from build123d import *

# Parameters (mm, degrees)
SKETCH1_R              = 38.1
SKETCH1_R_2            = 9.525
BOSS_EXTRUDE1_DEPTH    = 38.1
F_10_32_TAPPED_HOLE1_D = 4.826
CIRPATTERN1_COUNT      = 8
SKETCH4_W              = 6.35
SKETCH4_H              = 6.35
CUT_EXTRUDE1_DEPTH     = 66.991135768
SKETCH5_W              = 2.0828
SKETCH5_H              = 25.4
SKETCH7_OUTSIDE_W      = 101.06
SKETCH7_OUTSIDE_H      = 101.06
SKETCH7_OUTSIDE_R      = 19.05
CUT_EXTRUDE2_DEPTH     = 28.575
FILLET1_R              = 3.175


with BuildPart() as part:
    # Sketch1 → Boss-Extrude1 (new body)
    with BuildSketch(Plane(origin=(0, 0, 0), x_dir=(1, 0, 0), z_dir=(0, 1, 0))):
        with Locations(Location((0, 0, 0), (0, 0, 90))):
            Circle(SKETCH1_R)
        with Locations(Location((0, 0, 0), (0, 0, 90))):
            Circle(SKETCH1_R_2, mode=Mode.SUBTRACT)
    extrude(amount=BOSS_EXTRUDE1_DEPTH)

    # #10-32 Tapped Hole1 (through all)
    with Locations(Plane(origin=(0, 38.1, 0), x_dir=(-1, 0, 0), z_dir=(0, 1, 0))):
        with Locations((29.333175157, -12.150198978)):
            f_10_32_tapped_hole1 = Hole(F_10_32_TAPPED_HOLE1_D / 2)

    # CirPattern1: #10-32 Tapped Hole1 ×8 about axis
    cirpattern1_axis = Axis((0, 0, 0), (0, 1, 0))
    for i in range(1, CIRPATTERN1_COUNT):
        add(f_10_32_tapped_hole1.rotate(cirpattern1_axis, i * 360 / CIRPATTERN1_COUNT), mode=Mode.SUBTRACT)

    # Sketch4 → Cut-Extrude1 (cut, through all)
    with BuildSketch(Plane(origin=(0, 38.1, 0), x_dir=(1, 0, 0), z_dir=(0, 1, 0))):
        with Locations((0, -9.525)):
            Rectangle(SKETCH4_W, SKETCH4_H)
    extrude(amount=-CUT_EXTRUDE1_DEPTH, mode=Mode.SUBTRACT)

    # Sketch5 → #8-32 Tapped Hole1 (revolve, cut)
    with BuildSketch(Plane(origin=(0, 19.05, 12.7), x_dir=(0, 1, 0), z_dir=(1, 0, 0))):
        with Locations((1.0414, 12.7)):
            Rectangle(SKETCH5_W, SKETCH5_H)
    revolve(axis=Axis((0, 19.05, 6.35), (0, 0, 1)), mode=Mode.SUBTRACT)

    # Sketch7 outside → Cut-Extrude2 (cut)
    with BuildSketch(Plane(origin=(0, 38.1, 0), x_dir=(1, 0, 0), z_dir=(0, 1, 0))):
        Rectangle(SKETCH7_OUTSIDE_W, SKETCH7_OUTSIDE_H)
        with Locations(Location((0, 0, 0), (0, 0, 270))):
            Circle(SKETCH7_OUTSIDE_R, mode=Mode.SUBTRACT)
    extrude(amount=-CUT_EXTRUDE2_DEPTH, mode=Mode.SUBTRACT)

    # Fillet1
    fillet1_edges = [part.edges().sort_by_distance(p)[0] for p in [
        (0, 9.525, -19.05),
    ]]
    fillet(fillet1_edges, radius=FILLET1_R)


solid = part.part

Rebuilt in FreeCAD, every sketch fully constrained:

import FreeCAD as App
import Part
import Sketcher

V = App.Vector
Q = App.Units.Quantity


def edges_at(feature, points):
    """Names of the edges that pass closest to the given points."""
    edges = feature.Shape.Edges
    near = lambda p: min(range(len(edges)), key=lambda i: edges[i].distToShape(Part.Vertex(*p))[0])
    return sorted({f"Edge{near(p) + 1}" for p in points})


def add_polygon(sketch, points):
    """Adds a closed chain of lines whose ends are joined by coincident constraints."""
    first, n = sketch.GeometryCount, len(points)
    for a, b in zip(points, points[1:] + points[:1]):
        sketch.addGeometry(Part.LineSegment(App.Vector(*a, 0), App.Vector(*b, 0)), False)
    for i in range(n):
        sketch.addConstraint(Sketcher.Constraint("Coincident", first + i, 2, first + (i + 1) % n, 1))

doc = App.newDocument("Part")
body = doc.addObject("PartDesign::Body", "Body")

sketch1 = body.newObject("Sketcher::SketchObject", "Sketch")
sketch1.AttachmentSupport = (doc.getObject("XZ_Plane"), [""])
sketch1.MapMode = "FlatFace"
sketch1.addGeometry([
    Part.Circle(V(0, 0, 0), V(0, 0, 1), 38.1),
    Part.Circle(V(0, 0, 0), V(0, 0, 1), 9.525),
], False)
sketch1.addConstraint([
    Sketcher.Constraint("Coincident", 0, 3, -1, 1),
    Sketcher.Constraint("Coincident", 1, 3, -1, 1),
    Sketcher.Constraint("Diameter", 0, Q("3 in")),
    Sketcher.Constraint("Diameter", 1, Q("0.75 in")),
])
pad1 = body.newObject("PartDesign::Pad", "Pad")
pad1.Profile = sketch1
pad1.Length = Q("1.5 in")
pad1.Reversed = True

sketch2 = body.newObject("Sketcher::SketchObject", "Sketch001")
sketch2.AttachmentSupport = (doc.getObject("XZ_Plane"), [""])
sketch2.MapMode = "FlatFace"
sketch2.AttachmentOffset = App.Placement(V(0, 0, -1.5 * 25.4), App.Rotation())
sketch2.addGeometry(Part.Circle(V(-29.333175, -12.150199, 0), V(0, 0, 1), 2.413), False)
sketch2.addConstraint([
    Sketcher.Constraint("Diameter", 0, Q("0.19 in")),
    Sketcher.Constraint("DistanceY", 0, 3, -1, 1, 12.150199),
    Sketcher.Constraint("DistanceX", 0, 3, -1, 1, 29.333175),
])
doc.recompute()
hole = body.newObject("PartDesign::Hole", "Hole")
hole.Profile = sketch2
hole.ThreadType = "None"
hole.Diameter = Q("0.19 in")
hole.DepthType = "ThroughAll"
hole.Reversed = True
doc.recompute()

polarpattern = body.newObject("PartDesign::PolarPattern", "PolarPattern")
polarpattern.Originals = [hole]
polarpattern.Axis = (doc.getObject("Y_Axis"), [""])
polarpattern.Angle = 360
polarpattern.Occurrences = 8
body.Tip = polarpattern

sketch3 = body.newObject("Sketcher::SketchObject", "Sketch002")
sketch3.AttachmentSupport = (doc.getObject("XZ_Plane"), [""])
sketch3.MapMode = "FlatFace"
sketch3.AttachmentOffset = App.Placement(V(0, 0, -1.5 * 25.4), App.Rotation())
add_polygon(sketch3, [(-3.175, 6.35), (-3.175, 12.7), (3.175, 12.7), (3.175, 6.35)])
sketch3.addConstraint([
    Sketcher.Constraint("Vertical", 0),
    Sketcher.Constraint("Horizontal", 1),
    Sketcher.Constraint("Vertical", 2),
    Sketcher.Constraint("Horizontal", 3),
    Sketcher.Constraint("Equal", 3, 0),
    Sketcher.Constraint("DistanceX", 1, 1, 1, 2, Q("0.25 in")),
    Sketcher.Constraint("DistanceY", -1, 1, 0, 2, Q("0.5 in")),
    Sketcher.Constraint("DistanceX", 0, 2, -1, 1, Q("0.125 in")),
])
pocket1 = body.newObject("PartDesign::Pocket", "Pocket")
pocket1.Profile = sketch3
pocket1.Type = "ThroughAll"
pocket1.Reversed = True

sketch4 = body.newObject("Sketcher::SketchObject", "Sketch003")
sketch4.AttachmentSupport = (doc.getObject("YZ_Plane"), [""])
sketch4.MapMode = "FlatFace"
add_polygon(sketch4, [(19.05, 38.1), (19.05, 12.7), (21.1328, 12.7), (21.1328, 38.1)])
sketch4.addGeometry(Part.LineSegment(V(19.05, 12.7, 0), V(19.05, 38.1, 0)), True)
sketch4.addConstraint([
    Sketcher.Constraint("Vertical", 0),
    Sketcher.Constraint("Horizontal", 1),
    Sketcher.Constraint("Vertical", 2),
    Sketcher.Constraint("Horizontal", 3),
    Sketcher.Constraint("Vertical", 4),
    Sketcher.Constraint("Coincident", 4, 1, 0, 2),
    Sketcher.Constraint("Horizontal", 2, 2, 4, 2),
    Sketcher.Constraint("DistanceY", 0, 2, 0, 1, Q("1 in")),
    Sketcher.Constraint("DistanceY", -1, 1, 0, 2, Q("0.5 in")),
    Sketcher.Constraint("DistanceX", 1, 1, 1, 2, Q("0.082 in")),
    Sketcher.Constraint("DistanceX", -1, 1, 0, 2, Q("0.75 in")),
])
groove = body.newObject("PartDesign::Groove", "Groove")
groove.Profile = sketch4
groove.ReferenceAxis = (sketch4, ["Axis0"])
groove.Angle = 360

sketch5 = body.newObject("Sketcher::SketchObject", "Sketch004")
sketch5.AttachmentSupport = (doc.getObject("XZ_Plane"), [""])
sketch5.MapMode = "FlatFace"
sketch5.AttachmentOffset = App.Placement(V(0, 0, -1.5 * 25.4), App.Rotation())
add_polygon(sketch5, [(-50.53, -50.53), (-50.53, 50.53), (50.53, 50.53), (50.53, -50.53)])
sketch5.addGeometry(Part.Circle(V(0, 0, 0), V(0, 0, 1), 19.05), False)
sketch5.addConstraint([
    Sketcher.Constraint("Vertical", 0),
    Sketcher.Constraint("Horizontal", 1),
    Sketcher.Constraint("Vertical", 2),
    Sketcher.Constraint("Horizontal", 3),
    Sketcher.Constraint("Coincident", 4, 3, -1, 1),
    Sketcher.Constraint("Symmetric", 0, 2, 2, 2, -1, 1),
    Sketcher.Constraint("Equal", 3, 0),
    Sketcher.Constraint("Diameter", 4, Q("1.5 in")),
    Sketcher.Constraint("DistanceX", 1, 1, 1, 2, 101.06),
])
pocket2 = body.newObject("PartDesign::Pocket", "Pocket001")
pocket2.Profile = sketch5
pocket2.Length = Q("1.125 in")
pocket2.Reversed = True
doc.recompute()

fillet = body.newObject("PartDesign::Fillet", "Fillet")
fillet.Base = (pocket2, edges_at(pocket2, [(0, 9.525, -19.05)]))
fillet.Radius = Q("0.125 in")

doc.recompute()
